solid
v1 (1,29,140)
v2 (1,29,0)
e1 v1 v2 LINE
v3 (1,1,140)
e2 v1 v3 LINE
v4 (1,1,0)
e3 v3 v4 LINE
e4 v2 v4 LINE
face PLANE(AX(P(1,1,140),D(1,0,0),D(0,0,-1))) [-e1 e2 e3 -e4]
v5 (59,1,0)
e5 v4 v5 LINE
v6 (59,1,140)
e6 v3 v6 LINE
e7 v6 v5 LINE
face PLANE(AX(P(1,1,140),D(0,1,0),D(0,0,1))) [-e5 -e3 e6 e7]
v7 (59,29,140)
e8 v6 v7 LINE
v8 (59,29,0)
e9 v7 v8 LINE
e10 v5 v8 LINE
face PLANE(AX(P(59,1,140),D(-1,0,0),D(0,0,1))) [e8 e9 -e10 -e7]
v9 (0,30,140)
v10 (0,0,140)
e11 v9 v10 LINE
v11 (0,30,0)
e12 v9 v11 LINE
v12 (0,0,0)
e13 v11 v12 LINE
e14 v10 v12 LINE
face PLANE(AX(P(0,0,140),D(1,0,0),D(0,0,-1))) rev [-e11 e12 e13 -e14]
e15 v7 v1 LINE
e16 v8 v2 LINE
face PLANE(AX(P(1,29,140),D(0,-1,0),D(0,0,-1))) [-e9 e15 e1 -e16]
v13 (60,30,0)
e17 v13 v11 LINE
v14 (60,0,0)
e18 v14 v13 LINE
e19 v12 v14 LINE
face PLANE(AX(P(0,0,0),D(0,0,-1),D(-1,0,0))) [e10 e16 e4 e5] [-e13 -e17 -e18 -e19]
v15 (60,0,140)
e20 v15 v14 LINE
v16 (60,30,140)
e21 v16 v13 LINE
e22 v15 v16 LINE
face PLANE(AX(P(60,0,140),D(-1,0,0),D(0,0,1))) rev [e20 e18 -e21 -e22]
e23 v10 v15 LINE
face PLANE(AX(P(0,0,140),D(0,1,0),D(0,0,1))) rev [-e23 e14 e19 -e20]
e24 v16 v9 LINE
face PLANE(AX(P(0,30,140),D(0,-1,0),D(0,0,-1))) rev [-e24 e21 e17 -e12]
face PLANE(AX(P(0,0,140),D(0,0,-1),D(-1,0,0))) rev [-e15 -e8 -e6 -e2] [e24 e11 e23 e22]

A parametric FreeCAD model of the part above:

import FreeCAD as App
import Part
import Sketcher

V = App.Vector

doc = App.newDocument("Part")
body = doc.addObject("PartDesign::Body", "Body")

# Sketch on XY plane
sketch1 = body.newObject("Sketcher::SketchObject", "Sketch")
sketch1.AttachmentSupport = (doc.getObject("XY_Plane"), [""])
sketch1.MapMode = "FlatFace"
sketch1.addGeometry(Part.LineSegment(V(0, 30, 0), V(0, 0, 0)), False)
sketch1.addGeometry(Part.LineSegment(V(0, 0, 0), V(60, 0, 0)), False)
sketch1.addGeometry(Part.LineSegment(V(60, 0, 0), V(60, 30, 0)), False)
sketch1.addGeometry(Part.LineSegment(V(60, 30, 0), V(0, 30, 0)), False)
sketch1.addGeometry(Part.LineSegment(V(59, 1, 0), V(1, 1, 0)), False)
sketch1.addGeometry(Part.LineSegment(V(1, 1, 0), V(1, 29, 0)), False)
sketch1.addGeometry(Part.LineSegment(V(1, 29, 0), V(59, 29, 0)), False)
sketch1.addGeometry(Part.LineSegment(V(59, 29, 0), V(59, 1, 0)), False)
sketch1.addConstraint(Sketcher.Constraint("Coincident", 0, 2, 1, 1))
sketch1.addConstraint(Sketcher.Constraint("Coincident", 1, 2, 2, 1))
sketch1.addConstraint(Sketcher.Constraint("Coincident", 2, 2, 3, 1))
sketch1.addConstraint(Sketcher.Constraint("Coincident", 3, 2, 0, 1))
sketch1.addConstraint(Sketcher.Constraint("Coincident", 4, 2, 5, 1))
sketch1.addConstraint(Sketcher.Constraint("Coincident", 5, 2, 6, 1))
sketch1.addConstraint(Sketcher.Constraint("Coincident", 6, 2, 7, 1))
sketch1.addConstraint(Sketcher.Constraint("Coincident", 7, 2, 4, 1))
sketch1.addConstraint(Sketcher.Constraint("Vertical", 0))
sketch1.addConstraint(Sketcher.Constraint("Horizontal", 1))
sketch1.addConstraint(Sketcher.Constraint("Vertical", 2))
sketch1.addConstraint(Sketcher.Constraint("Horizontal", 3))
sketch1.addConstraint(Sketcher.Constraint("Horizontal", 4))
sketch1.addConstraint(Sketcher.Constraint("Vertical", 5))
sketch1.addConstraint(Sketcher.Constraint("Horizontal", 6))
sketch1.addConstraint(Sketcher.Constraint("Vertical", 7))
sketch1.addConstraint(Sketcher.Constraint("Coincident", 0, 2, -1, 1))
sketch1.addConstraint(Sketcher.Constraint("DistanceX", 1, 1, 1, 2, 60.0))
sketch1.addConstraint(Sketcher.Constraint("DistanceX", 4, 2, 4, 1, 58.0))
sketch1.addConstraint(Sketcher.Constraint("DistanceY", 0, 2, 0, 1, 30.0))
sketch1.addConstraint(Sketcher.Constraint("DistanceY", 5, 1, 5, 2, 28.0))
sketch1.addConstraint(Sketcher.Constraint("DistanceX", -1, 1, 4, 2, 1.0))
sketch1.addConstraint(Sketcher.Constraint("DistanceY", -1, 1, 4, 2, 1.0))
pad1 = body.newObject("PartDesign::Pad", "Pad")
pad1.Profile = sketch1
pad1.Length = 140

doc.recompute()
